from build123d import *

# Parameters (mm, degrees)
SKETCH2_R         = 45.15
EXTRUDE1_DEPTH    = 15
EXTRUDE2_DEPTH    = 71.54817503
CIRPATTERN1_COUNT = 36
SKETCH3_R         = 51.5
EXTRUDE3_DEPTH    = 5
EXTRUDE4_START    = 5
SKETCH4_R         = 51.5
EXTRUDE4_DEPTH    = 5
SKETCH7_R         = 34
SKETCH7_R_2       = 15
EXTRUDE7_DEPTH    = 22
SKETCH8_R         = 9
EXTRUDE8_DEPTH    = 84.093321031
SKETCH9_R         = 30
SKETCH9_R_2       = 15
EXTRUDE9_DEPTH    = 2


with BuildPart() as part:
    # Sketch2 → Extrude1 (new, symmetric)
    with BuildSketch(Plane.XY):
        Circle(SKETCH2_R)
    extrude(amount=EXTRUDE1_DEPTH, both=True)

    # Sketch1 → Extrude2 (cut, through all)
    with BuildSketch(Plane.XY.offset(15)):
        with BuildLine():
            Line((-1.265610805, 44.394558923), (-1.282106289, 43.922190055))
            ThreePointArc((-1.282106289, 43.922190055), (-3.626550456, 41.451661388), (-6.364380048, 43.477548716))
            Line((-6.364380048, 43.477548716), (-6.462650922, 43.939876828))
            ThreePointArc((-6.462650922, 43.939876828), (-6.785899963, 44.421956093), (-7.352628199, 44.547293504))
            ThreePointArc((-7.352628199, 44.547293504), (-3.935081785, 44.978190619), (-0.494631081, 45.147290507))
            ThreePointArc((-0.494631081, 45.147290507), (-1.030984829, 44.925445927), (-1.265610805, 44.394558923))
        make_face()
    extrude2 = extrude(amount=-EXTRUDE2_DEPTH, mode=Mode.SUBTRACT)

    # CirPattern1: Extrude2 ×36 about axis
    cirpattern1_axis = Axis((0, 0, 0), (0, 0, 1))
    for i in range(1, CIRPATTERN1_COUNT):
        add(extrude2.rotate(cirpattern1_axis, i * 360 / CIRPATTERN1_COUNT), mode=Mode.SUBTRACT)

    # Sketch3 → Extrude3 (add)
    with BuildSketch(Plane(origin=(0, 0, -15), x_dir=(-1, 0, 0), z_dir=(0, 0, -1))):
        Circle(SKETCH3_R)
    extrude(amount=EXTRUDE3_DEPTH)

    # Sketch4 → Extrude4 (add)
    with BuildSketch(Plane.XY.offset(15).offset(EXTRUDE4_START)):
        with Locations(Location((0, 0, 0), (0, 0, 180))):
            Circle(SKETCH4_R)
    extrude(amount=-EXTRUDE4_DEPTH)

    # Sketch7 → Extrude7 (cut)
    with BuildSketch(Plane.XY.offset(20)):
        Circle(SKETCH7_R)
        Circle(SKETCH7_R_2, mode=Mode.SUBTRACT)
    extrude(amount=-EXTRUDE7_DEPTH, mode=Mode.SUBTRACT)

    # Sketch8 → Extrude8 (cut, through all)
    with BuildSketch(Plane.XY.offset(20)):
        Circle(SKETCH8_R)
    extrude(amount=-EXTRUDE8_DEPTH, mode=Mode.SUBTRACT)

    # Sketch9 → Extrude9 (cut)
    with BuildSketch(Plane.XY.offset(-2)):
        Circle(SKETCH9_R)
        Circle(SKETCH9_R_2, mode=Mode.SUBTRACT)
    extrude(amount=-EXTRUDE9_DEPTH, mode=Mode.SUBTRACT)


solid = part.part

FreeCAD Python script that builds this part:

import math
import FreeCAD as App
import Part
import Sketcher
Q = App.Units.Quantity

doc = App.newDocument("Part")
body = doc.addObject("PartDesign::Body", "Body")

# Sketch on XY plane
sketch1 = body.newObject("Sketcher::SketchObject", "Sketch")
sketch1.AttachmentSupport = (doc.getObject("XY_Plane"), [""])
sketch1.MapMode = "FlatFace"
sketch1.addGeometry(Part.Circle(App.Vector(0, 0, 0), App.Vector(0, 0, 1), 45), False)
sketch1.addConstraint([
    Sketcher.Constraint("Coincident", 0, 3, -1, 1),
    Sketcher.Constraint("Diameter", 0, Q("90.3 mm")),
])
pad1 = body.newObject("PartDesign::Pad", "Pad")
pad1.Profile = sketch1
pad1.Length = 30
pad1.Midplane = True

# Sketch on XY plane
sketch2 = body.newObject("Sketcher::SketchObject", "Sketch001")
sketch2.AttachmentSupport = (doc.getObject("XY_Plane"), [""])
sketch2.MapMode = "FlatFace"
sketch2.AttachmentOffset = App.Placement(App.Vector(0, 0, 15), App.Rotation())
sketch2.addGeometry([
    Part.LineSegment(App.Vector(-1.28, 43.92, 0), App.Vector(-1.27, 44.39, 0)),  # 0
    Part.ArcOfCircle(Part.Circle(App.Vector(-0.49, 44.37, 0), App.Vector(0, 0, 1), 0.78), math.radians(91), math.radians(178)),  # 1
    Part.ArcOfCircle(Part.Circle(App.Vector(0, 0, 0), App.Vector(0, 0, 1), 45.15), math.radians(90.63), math.radians(99.37)),  # 2
    Part.ArcOfCircle(Part.Circle(App.Vector(-7.23, 43.78, 0), App.Vector(0, 0, 1), 0.78), math.radians(12), math.radians(99)),  # 3
    Part.LineSegment(App.Vector(-6.46, 43.94, 0), App.Vector(-6.36, 43.48, 0)),  # 4
    Part.ArcOfCircle(Part.Circle(App.Vector(-3.85, 44.01, 0), App.Vector(0, 0, 1), 2.57), math.radians(-168), math.radians(-2)),  # 5
], False)
sketch2.addConstraint([
    Sketcher.Constraint("Tangent", 0, 2, 1, 2),
    Sketcher.Constraint("Tangent", 1, 1, 2, 1),
    Sketcher.Constraint("Tangent", 2, 2, 3, 2),
    Sketcher.Constraint("Tangent", 3, 1, 4, 1),
    Sketcher.Constraint("Tangent", 4, 2, 5, 1),
    Sketcher.Constraint("Tangent", 5, 2, 0, 1),
    Sketcher.Constraint("Coincident", 2, 3, -1, 1),
    Sketcher.Constraint("Equal", 1, 3),
    Sketcher.Constraint("Equal", 0, 4),
    Sketcher.Constraint("Angle", 0, Q("88 deg")),
    Sketcher.Constraint("Angle", 4, Q("-78 deg")),
    Sketcher.Constraint("Radius", 1, Q("0.78 mm")),
    Sketcher.Constraint("Radius", 2, Q("45.15 mm")),
    Sketcher.Constraint("Radius", 5, Q("2.57 mm")),
    Sketcher.Constraint("DistanceY", 5, 2, 1, 1, Q("1.2251 mm")),
])
pocket1 = body.newObject("PartDesign::Pocket", "Pocket")
pocket1.Profile = sketch2
pocket1.Type = "ThroughAll"
doc.recompute()

polarpattern = body.newObject("PartDesign::PolarPattern", "PolarPattern")
polarpattern.Originals = [pocket1]
polarpattern.Axis = (doc.getObject("Z_Axis"), [""])
polarpattern.Angle = 360
polarpattern.Occurrences = 36
body.Tip = polarpattern

# Sketch on XY plane
sketch3 = body.newObject("Sketcher::SketchObject", "Sketch002")
sketch3.AttachmentSupport = (doc.getObject("XY_Plane"), [""])
sketch3.MapMode = "FlatFace"
sketch3.AttachmentOffset = App.Placement(App.Vector(0, 0, -15), App.Rotation())
sketch3.addGeometry(Part.Circle(App.Vector(0, 0, 0), App.Vector(0, 0, 1), 52), False)
sketch3.addConstraint([
    Sketcher.Constraint("Coincident", 0, 3, -1, 1),
    Sketcher.Constraint("Diameter", 0, Q("103 mm")),
])
pad2 = body.newObject("PartDesign::Pad", "Pad001")
pad2.Profile = sketch3
pad2.Length = 5
pad2.Reversed = True

# Sketch on XY plane
sketch4 = body.newObject("Sketcher::SketchObject", "Sketch003")
sketch4.AttachmentSupport = (doc.getObject("XY_Plane"), [""])
sketch4.MapMode = "FlatFace"
sketch4.AttachmentOffset = App.Placement(App.Vector(0, 0, 20), App.Rotation())
sketch4.addGeometry(Part.Circle(App.Vector(0, 0, 0), App.Vector(0, 0, 1), 52), False)
sketch4.addConstraint([
    Sketcher.Constraint("Coincident", 0, 3, -1, 1),
    Sketcher.Constraint("Diameter", 0, Q("103 mm")),
])
pad3 = body.newObject("PartDesign::Pad", "Pad002")
pad3.Profile = sketch4
pad3.Length = 5
pad3.Reversed = True

# Sketch on XY plane
sketch5 = body.newObject("Sketcher::SketchObject", "Sketch004")
sketch5.AttachmentSupport = (doc.getObject("XY_Plane"), [""])
sketch5.MapMode = "FlatFace"
sketch5.AttachmentOffset = App.Placement(App.Vector(0, 0, 20), App.Rotation())
sketch5.addGeometry([
    Part.Circle(App.Vector(0, 0, 0), App.Vector(0, 0, 1), 34),
    Part.Circle(App.Vector(0, 0, 0), App.Vector(0, 0, 1), 15),
], False)
sketch5.addConstraint([
    Sketcher.Constraint("Coincident", 0, 3, -1, 1),
    Sketcher.Constraint("Coincident", 1, 3, -1, 1),
    Sketcher.Constraint("Diameter", 0, Q("68 mm")),
    Sketcher.Constraint("Diameter", 1, Q("30 mm")),
])
pocket2 = body.newObject("PartDesign::Pocket", "Pocket001")
pocket2.Profile = sketch5
pocket2.Length = 22

# Sketch on XY plane
sketch6 = body.newObject("Sketcher::SketchObject", "Sketch005")
sketch6.AttachmentSupport = (doc.getObject("XY_Plane"), [""])
sketch6.MapMode = "FlatFace"
sketch6.AttachmentOffset = App.Placement(App.Vector(0, 0, 20), App.Rotation())
sketch6.addGeometry(Part.Circle(App.Vector(0, 0, 0), App.Vector(0, 0, 1), 9), False)
sketch6.addConstraint([
    Sketcher.Constraint("Coincident", 0, 3, -1, 1),
    Sketcher.Constraint("Diameter", 0, Q("18 mm")),
])
pocket3 = body.newObject("PartDesign::Pocket", "Pocket002")
pocket3.Profile = sketch6
pocket3.Type = "ThroughAll"

# Sketch on XY plane
sketch7 = body.newObject("Sketcher::SketchObject", "Sketch006")
sketch7.AttachmentSupport = (doc.getObject("XY_Plane"), [""])
sketch7.MapMode = "FlatFace"
sketch7.AttachmentOffset = App.Placement(App.Vector(0, 0, -2), App.Rotation())
sketch7.addGeometry([
    Part.Circle(App.Vector(0, 0, 0), App.Vector(0, 0, 1), 30),
    Part.Circle(App.Vector(0, 0, 0), App.Vector(0, 0, 1), 15),
], False)
sketch7.addConstraint([
    Sketcher.Constraint("Coincident", 0, 3, -1, 1),
    Sketcher.Constraint("Coincident", 1, 3, -1, 1),
    Sketcher.Constraint("Diameter", 0, Q("60 mm")),
    Sketcher.Constraint("Diameter", 1, Q("30 mm")),
])
pocket4 = body.newObject("PartDesign::Pocket", "Pocket003")
pocket4.Profile = sketch7
pocket4.Length = 2

doc.recompute()
